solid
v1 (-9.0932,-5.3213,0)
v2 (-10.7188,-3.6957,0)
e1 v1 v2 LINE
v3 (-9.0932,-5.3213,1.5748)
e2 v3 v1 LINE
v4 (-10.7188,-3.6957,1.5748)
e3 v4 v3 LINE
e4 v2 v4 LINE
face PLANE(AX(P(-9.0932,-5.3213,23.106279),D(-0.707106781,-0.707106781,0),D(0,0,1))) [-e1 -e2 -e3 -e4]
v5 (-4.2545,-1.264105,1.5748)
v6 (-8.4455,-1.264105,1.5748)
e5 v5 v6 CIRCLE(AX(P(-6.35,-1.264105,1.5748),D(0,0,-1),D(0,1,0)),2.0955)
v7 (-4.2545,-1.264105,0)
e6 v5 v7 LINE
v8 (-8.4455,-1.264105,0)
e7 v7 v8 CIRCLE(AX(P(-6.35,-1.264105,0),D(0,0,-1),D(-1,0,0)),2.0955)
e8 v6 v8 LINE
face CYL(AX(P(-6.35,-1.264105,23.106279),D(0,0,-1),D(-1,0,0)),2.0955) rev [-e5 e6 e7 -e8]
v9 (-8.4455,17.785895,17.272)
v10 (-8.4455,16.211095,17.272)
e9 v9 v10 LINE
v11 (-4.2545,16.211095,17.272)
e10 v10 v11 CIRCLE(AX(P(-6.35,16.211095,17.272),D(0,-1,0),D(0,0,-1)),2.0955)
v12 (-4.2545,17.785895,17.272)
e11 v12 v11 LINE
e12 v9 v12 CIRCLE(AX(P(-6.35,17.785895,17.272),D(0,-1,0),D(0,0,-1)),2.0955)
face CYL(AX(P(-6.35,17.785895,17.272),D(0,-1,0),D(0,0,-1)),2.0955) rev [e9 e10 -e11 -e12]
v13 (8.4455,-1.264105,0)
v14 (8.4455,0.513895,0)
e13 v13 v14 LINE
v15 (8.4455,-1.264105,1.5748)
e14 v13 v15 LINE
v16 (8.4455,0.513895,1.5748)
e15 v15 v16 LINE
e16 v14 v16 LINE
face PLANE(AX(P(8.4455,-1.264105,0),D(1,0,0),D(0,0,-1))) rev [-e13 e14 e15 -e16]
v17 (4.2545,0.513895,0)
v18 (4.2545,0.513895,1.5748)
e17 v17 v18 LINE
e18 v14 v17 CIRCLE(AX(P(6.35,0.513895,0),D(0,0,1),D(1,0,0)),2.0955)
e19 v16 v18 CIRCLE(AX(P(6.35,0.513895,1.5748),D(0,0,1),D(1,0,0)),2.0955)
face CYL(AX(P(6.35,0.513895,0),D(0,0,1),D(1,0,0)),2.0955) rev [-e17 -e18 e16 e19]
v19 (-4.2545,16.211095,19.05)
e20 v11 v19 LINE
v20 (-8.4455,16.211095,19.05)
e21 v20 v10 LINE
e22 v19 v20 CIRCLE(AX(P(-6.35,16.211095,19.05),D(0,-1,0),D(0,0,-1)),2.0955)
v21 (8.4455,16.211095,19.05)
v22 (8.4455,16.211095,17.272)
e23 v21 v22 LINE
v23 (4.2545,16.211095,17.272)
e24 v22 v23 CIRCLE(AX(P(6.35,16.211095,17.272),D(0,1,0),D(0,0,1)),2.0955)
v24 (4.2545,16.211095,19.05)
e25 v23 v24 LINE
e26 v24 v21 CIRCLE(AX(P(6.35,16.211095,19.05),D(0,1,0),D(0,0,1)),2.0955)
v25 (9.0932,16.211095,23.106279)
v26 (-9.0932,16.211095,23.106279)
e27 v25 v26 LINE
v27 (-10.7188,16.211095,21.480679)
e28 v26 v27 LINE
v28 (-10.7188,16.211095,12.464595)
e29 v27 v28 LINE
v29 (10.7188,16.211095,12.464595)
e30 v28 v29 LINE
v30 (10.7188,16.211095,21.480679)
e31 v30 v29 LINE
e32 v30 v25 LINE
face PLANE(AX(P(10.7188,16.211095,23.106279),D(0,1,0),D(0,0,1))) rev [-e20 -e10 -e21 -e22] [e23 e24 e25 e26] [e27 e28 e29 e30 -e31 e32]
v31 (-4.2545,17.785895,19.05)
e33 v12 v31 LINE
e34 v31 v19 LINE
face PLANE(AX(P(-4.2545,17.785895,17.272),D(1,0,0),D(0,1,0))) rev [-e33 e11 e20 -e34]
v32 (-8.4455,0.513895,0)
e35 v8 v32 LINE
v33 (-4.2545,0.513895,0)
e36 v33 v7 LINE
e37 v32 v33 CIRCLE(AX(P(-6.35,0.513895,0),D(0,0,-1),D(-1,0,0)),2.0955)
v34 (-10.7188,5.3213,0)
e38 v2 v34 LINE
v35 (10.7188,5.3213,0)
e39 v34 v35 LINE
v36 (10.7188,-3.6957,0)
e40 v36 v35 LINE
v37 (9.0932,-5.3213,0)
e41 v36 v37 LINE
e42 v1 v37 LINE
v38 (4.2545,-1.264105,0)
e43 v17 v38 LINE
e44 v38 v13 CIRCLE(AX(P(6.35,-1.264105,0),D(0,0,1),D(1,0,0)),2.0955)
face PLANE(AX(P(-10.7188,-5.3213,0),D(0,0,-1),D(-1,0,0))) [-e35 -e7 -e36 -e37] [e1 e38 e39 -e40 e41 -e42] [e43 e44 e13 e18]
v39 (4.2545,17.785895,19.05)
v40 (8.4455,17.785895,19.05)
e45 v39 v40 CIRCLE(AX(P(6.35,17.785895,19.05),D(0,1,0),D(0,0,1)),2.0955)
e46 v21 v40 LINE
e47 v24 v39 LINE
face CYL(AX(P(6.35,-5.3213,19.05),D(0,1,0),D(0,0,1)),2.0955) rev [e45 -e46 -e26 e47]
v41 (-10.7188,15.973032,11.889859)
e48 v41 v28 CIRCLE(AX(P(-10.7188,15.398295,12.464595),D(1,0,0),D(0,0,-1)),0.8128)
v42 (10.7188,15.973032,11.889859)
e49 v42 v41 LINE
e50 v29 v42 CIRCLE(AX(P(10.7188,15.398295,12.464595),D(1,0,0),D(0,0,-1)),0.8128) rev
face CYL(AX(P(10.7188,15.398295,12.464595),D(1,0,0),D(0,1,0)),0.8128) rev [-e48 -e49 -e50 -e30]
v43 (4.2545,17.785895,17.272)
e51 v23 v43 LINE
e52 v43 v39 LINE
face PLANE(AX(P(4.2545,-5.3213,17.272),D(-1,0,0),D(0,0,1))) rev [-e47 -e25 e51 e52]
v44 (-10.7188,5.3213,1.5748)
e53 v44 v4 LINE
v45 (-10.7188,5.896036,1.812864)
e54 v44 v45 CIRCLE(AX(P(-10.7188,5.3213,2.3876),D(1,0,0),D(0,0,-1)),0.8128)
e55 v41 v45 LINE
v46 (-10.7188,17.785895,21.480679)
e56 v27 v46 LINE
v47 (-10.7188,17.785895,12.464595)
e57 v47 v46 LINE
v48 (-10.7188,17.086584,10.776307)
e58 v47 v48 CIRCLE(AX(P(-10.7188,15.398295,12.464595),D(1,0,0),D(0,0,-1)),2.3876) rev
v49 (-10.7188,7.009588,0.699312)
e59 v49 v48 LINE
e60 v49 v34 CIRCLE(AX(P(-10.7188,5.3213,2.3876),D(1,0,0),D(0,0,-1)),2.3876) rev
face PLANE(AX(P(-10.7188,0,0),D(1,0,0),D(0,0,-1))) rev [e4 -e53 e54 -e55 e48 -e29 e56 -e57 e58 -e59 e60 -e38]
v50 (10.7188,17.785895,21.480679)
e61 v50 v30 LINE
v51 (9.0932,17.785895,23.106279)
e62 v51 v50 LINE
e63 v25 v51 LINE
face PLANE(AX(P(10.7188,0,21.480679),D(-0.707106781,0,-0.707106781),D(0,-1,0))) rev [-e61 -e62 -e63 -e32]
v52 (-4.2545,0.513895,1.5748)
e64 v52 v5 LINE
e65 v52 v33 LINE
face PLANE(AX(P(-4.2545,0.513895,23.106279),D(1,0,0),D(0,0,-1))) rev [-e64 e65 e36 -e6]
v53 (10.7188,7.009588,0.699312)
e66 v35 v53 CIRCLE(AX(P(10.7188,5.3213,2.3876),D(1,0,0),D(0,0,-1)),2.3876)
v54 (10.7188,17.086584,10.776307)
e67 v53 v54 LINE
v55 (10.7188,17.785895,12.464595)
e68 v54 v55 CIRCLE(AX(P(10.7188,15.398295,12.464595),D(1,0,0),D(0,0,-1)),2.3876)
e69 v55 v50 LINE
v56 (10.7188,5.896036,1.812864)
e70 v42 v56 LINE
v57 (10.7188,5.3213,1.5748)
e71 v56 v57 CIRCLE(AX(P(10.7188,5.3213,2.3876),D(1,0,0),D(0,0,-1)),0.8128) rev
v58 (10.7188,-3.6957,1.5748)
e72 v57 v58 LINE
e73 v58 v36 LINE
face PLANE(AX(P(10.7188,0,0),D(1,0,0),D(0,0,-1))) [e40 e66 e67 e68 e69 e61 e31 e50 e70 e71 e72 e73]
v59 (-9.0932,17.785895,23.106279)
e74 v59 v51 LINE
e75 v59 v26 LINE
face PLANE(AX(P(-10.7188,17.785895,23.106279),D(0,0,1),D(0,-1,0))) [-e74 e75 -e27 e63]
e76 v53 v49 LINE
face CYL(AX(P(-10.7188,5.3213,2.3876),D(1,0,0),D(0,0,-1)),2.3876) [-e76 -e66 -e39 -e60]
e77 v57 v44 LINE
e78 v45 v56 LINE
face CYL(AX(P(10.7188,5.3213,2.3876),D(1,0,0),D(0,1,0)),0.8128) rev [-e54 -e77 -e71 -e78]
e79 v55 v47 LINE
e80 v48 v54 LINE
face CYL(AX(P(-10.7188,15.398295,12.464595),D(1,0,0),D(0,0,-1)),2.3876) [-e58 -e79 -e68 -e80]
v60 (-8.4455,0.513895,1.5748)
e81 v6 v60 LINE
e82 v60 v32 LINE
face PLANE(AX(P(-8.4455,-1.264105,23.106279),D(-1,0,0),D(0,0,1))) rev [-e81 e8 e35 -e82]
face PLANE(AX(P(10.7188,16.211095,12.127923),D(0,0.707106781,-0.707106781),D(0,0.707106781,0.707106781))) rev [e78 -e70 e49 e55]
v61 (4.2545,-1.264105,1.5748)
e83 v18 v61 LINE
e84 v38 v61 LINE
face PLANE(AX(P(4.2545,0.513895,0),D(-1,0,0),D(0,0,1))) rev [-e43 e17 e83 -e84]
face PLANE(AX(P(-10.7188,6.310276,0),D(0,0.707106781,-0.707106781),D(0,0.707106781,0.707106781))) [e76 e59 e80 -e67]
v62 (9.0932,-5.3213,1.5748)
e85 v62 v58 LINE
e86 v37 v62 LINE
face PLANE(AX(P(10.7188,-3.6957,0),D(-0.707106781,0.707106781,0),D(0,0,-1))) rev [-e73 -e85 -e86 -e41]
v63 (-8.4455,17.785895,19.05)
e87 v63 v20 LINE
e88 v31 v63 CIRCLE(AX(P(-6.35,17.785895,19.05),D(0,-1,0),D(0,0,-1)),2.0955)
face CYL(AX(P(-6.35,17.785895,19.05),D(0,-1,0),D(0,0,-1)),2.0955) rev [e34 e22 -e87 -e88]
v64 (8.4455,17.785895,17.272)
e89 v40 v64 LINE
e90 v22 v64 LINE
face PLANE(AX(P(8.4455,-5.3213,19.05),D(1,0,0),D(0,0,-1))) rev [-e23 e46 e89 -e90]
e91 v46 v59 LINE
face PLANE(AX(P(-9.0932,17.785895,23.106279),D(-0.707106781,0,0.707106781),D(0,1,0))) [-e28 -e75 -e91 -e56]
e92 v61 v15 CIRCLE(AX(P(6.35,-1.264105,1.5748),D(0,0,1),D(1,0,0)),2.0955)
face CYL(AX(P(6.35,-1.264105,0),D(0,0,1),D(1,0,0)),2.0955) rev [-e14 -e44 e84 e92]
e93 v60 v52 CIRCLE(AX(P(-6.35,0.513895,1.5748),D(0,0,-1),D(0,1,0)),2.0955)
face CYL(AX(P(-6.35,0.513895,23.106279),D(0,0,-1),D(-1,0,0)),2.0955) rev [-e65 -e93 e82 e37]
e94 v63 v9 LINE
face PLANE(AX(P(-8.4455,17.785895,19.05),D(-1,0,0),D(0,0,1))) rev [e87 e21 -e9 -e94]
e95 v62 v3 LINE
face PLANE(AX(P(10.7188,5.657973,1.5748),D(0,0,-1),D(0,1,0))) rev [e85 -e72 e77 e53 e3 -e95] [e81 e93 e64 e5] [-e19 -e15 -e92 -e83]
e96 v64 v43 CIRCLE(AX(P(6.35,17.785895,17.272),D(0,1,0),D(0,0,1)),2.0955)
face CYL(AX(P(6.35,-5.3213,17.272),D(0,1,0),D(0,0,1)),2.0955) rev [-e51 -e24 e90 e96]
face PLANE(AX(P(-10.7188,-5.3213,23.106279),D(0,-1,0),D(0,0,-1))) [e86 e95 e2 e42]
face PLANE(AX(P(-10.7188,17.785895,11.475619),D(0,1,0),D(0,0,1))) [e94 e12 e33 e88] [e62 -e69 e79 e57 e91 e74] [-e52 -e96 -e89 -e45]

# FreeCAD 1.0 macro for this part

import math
import FreeCAD as App
import Part
import Sketcher
from FreeCAD import Vector
Q = App.Units.Quantity


def edges_at(feature, points):
    """Names of the edges that pass closest to the given points."""
    edges = feature.Shape.Edges
    near = lambda p: min(range(len(edges)), key=lambda i: edges[i].distToShape(Part.Vertex(*p))[0])
    return sorted({f"Edge{near(p) + 1}" for p in points})


def add_polygon(sketch, points):
    """Adds a closed chain of lines whose ends are joined by coincident constraints."""
    first, n = sketch.GeometryCount, len(points)
    for a, b in zip(points, points[1:] + points[:1]):
        sketch.addGeometry(Part.LineSegment(App.Vector(*a, 0), App.Vector(*b, 0)), False)
    for i in range(n):
        sketch.addConstraint(Sketcher.Constraint("Coincident", first + i, 2, first + (i + 1) % n, 1))

doc = App.newDocument("Part")
body = doc.addObject("PartDesign::Body", "Body")

# Sketch on YZ plane
sketch1 = body.newObject("Sketcher::SketchObject", "Sketch")
sketch1.AttachmentSupport = (doc.getObject("YZ_Plane"), [""])
sketch1.MapMode = "FlatFace"
sketch1.AttachmentOffset = App.Placement(Vector(0, 0, 0.422 * 25.4), App.Rotation())
add_polygon(sketch1, [(17.785895, 23.106279), (-5.3213, 23.106279), (-5.3213, 0), (6.310276, 0), (17.785895, 11.475619)])  # lines 0-4
sketch1.addConstraint([
    Sketcher.Constraint("Horizontal", 0),
    Sketcher.Constraint("Vertical", 1),
    Sketcher.Constraint("Horizontal", 2),
    Sketcher.Constraint("Vertical", 4),
    Sketcher.Constraint("PointOnObject", 1, 2, -1),
    Sketcher.Constraint("Angle", 3, Q("45 deg")),
    Sketcher.Constraint("DistanceY", 4, 1, 4, 2, Q("0.4579 in")),
    Sketcher.Constraint("DistanceX", 0, 2, -1, 1, Q("0.2095 in")),
    Sketcher.Constraint("DistanceY", 1, 2, 1, 1, Q("23.106279 mm")),
    Sketcher.Constraint("DistanceX", 0, 2, 0, 1, Q("23.107195 mm")),
])
pad1 = body.newObject("PartDesign::Pad", "Pad")
pad1.Profile = sketch1
pad1.Length = Q("0.844 in")
pad1.Reversed = True

# Sketch on YZ plane
sketch2 = body.newObject("Sketcher::SketchObject", "Sketch001")
sketch2.AttachmentSupport = (doc.getObject("YZ_Plane"), [""])
sketch2.MapMode = "FlatFace"
sketch2.AttachmentOffset = App.Placement(Vector(0, 0, -0.422 * 25.4), App.Rotation())
add_polygon(sketch2, [(-5.3213, 23.106279), (16.211095, 23.106279), (16.211095, 12.127923), (5.657973, 1.5748), (-5.3213, 1.5748)])  # lines 0-4
sketch2.addConstraint([
    Sketcher.Constraint("Horizontal", 0),
    Sketcher.Constraint("Vertical", 1),
    Sketcher.Constraint("Horizontal", 3),
    Sketcher.Constraint("Vertical", 4),
    Sketcher.Constraint("Angle", 2, Q("-135 deg")),
    Sketcher.Constraint("DistanceY", -1, 1, 2, 2, Q("0.062 in")),
    Sketcher.Constraint("DistanceX", 3, 2, -1, 1, Q("0.2095 in")),
    Sketcher.Constraint("DistanceY", 4, 1, 4, 2, Q("21.531479 mm")),
    Sketcher.Constraint("Distance", 2, Q("14.924369 mm")),
    Sketcher.Constraint("DistanceX", 0, 1, 0, 2, Q("21.532395 mm")),
])
pocket1 = body.newObject("PartDesign::Pocket", "Pocket")
pocket1.Profile = sketch2
pocket1.Type = "ThroughAll"
pocket1.Reversed = True

# Sketch on XZ plane
sketch3 = body.newObject("Sketcher::SketchObject", "Sketch002")
sketch3.AttachmentSupport = (doc.getObject("XZ_Plane"), [""])
sketch3.MapMode = "FlatFace"
sketch3.AttachmentOffset = App.Placement(Vector(0, 0, -16.211095), App.Rotation())
sketch3.addGeometry([
    Part.LineSegment(Vector(-4.2545, 17.272, 0), Vector(-4.2545, 19.05, 0)),
    Part.ArcOfCircle(Part.Circle(Vector(-6.35, 19.05, 0), Vector(0, 0, 1), 2.0955), math.radians(0), math.radians(180)),
    Part.LineSegment(Vector(-8.4455, 19.05, 0), Vector(-8.4455, 17.272, 0)),
    Part.ArcOfCircle(Part.Circle(Vector(-6.35, 17.272, 0), Vector(0, 0, 1), 2.0955), math.radians(180), math.radians(360)),
], False)
sketch3.addConstraint([
    Sketcher.Constraint("Tangent", 0, 2, 1, 1),
    Sketcher.Constraint("Tangent", 1, 2, 2, 1),
    Sketcher.Constraint("Tangent", 2, 2, 3, 1),
    Sketcher.Constraint("Tangent", 3, 2, 0, 1),
    Sketcher.Constraint("Vertical", 0),
    Sketcher.Constraint("Vertical", 2),
    Sketcher.Constraint("DistanceY", 0, 1, 0, 2, Q("0.07 in")),
    Sketcher.Constraint("Radius", 1, Q("0.0825 in")),
    Sketcher.Constraint("DistanceX", 1, 3, -1, 1, Q("0.25 in")),
    Sketcher.Constraint("DistanceY", -1, 1, 1, 3, Q("0.75 in")),
])
pocket2 = body.newObject("PartDesign::Pocket", "Pocket001")
pocket2.Profile = sketch3
pocket2.Type = "ThroughAll"

# Sketch on XZ plane
sketch4 = body.newObject("Sketcher::SketchObject", "Sketch003")
sketch4.AttachmentSupport = (doc.getObject("XZ_Plane"), [""])
sketch4.MapMode = "FlatFace"
sketch4.AttachmentOffset = App.Placement(Vector(0, 0, -17.785895), App.Rotation())
sketch4.addGeometry([
    Part.LineSegment(Vector(8.4455, 19.05, 0), Vector(8.4455, 17.272, 0)),
    Part.ArcOfCircle(Part.Circle(Vector(6.35, 17.272, 0), Vector(0, 0, 1), 2.0955), math.radians(180), math.radians(360)),
    Part.LineSegment(Vector(4.2545, 17.272, 0), Vector(4.2545, 19.05, 0)),
    Part.ArcOfCircle(Part.Circle(Vector(6.35, 19.05, 0), Vector(0, 0, 1), 2.0955), math.radians(0), math.radians(180)),
], False)
sketch4.addConstraint([
    Sketcher.Constraint("Tangent", 0, 2, 1, 2),
    Sketcher.Constraint("Tangent", 1, 1, 2, 1),
    Sketcher.Constraint("Tangent", 2, 2, 3, 2),
    Sketcher.Constraint("Tangent", 3, 1, 0, 1),
    Sketcher.Constraint("Vertical", 0),
    Sketcher.Constraint("Vertical", 2),
    Sketcher.Constraint("DistanceY", 0, 2, 0, 1, Q("0.07 in")),
    Sketcher.Constraint("Radius", 1, Q("0.0825 in")),
    Sketcher.Constraint("DistanceX", -1, 1, 1, 3, Q("0.25 in")),
    Sketcher.Constraint("DistanceY", -1, 1, 1, 3, Q("0.68 in")),
])
pocket3 = body.newObject("PartDesign::Pocket", "Pocket002")
pocket3.Profile = sketch4
pocket3.Type = "ThroughAll"
pocket3.Reversed = True

# Sketch on XY plane
sketch5 = body.newObject("Sketcher::SketchObject", "Sketch004")
sketch5.AttachmentSupport = (doc.getObject("XY_Plane"), [""])
sketch5.MapMode = "FlatFace"
sketch5.AttachmentOffset = App.Placement(Vector(0, 0, 0.062 * 25.4), App.Rotation())
sketch5.addGeometry([
    Part.LineSegment(Vector(4.2545, 0.513895, 0), Vector(4.2545, -1.264105, 0)),
    Part.ArcOfCircle(Part.Circle(Vector(6.35, -1.264105, 0), Vector(0, 0, 1), 2.0955), math.radians(180), math.radians(360)),
    Part.LineSegment(Vector(8.4455, -1.264105, 0), Vector(8.4455, 0.513895, 0)),
    Part.ArcOfCircle(Part.Circle(Vector(6.35, 0.513895, 0), Vector(0, 0, 1), 2.0955), math.radians(0), math.radians(180)),
], False)
sketch5.addConstraint([
    Sketcher.Constraint("Tangent", 0, 2, 1, 1),
    Sketcher.Constraint("Tangent", 1, 2, 2, 1),
    Sketcher.Constraint("Tangent", 2, 2, 3, 1),
    Sketcher.Constraint("Tangent", 3, 2, 0, 1),
    Sketcher.Constraint("Vertical", 0),
    Sketcher.Constraint("Vertical", 2),
    Sketcher.Constraint("DistanceY", 0, 2, 0, 1, Q("0.07 in")),
    Sketcher.Constraint("Radius", 1, Q("0.0825 in")),
    Sketcher.Constraint("DistanceX", -1, 1, 1, 3, Q("0.25 in")),
    Sketcher.Constraint("DistanceY", 1, 3, -1, 1, Q("1.264105 mm")),
])
pocket4 = body.newObject("PartDesign::Pocket", "Pocket003")
pocket4.Profile = sketch5
pocket4.Type = "ThroughAll"

# Sketch on XY plane
sketch6 = body.newObject("Sketcher::SketchObject", "Sketch005")
sketch6.AttachmentSupport = (doc.getObject("XY_Plane"), [""])
sketch6.MapMode = "FlatFace"
sketch6.addGeometry([
    Part.LineSegment(Vector(-8.4455, -1.264105, 0), Vector(-8.4455, 0.513895, 0)),
    Part.ArcOfCircle(Part.Circle(Vector(-6.35, 0.513895, 0), Vector(0, 0, 1), 2.0955), math.radians(0), math.radians(180)),
    Part.LineSegment(Vector(-4.2545, 0.513895, 0), Vector(-4.2545, -1.264105, 0)),
    Part.ArcOfCircle(Part.Circle(Vector(-6.35, -1.264105, 0), Vector(0, 0, 1), 2.0955), math.radians(180), math.radians(360)),
], False)
sketch6.addConstraint([
    Sketcher.Constraint("Tangent", 0, 2, 1, 2),
    Sketcher.Constraint("Tangent", 1, 1, 2, 1),
    Sketcher.Constraint("Tangent", 2, 2, 3, 2),
    Sketcher.Constraint("Tangent", 3, 1, 0, 1),
    Sketcher.Constraint("Vertical", 0),
    Sketcher.Constraint("Vertical", 2),
    Sketcher.Constraint("DistanceY", 0, 1, 0, 2, Q("0.07 in")),
    Sketcher.Constraint("Radius", 1, Q("0.0825 in")),
    Sketcher.Constraint("DistanceX", 1, 3, -1, 1, Q("0.25 in")),
    Sketcher.Constraint("DistanceY", -1, 1, 1, 3, Q("0.513895 mm")),
])
pocket5 = body.newObject("PartDesign::Pocket", "Pocket004")
pocket5.Profile = sketch6
pocket5.Type = "ThroughAll"
pocket5.Reversed = True
doc.recompute()

chamfer = body.newObject("PartDesign::Chamfer", "Chamfer")
chamfer.Base = (pocket5, edges_at(pocket5, [
    (10.719, -5.321, 0.787),
    (-10.719, -5.321, 0.787),
    (10.719, 16.998, 23.106),
    (-10.719, 16.998, 23.106),
]))
chamfer.Size = Q("0.064 in")
doc.recompute()

fillet = body.newObject("PartDesign::Fillet", "Fillet")
fillet.Base = (chamfer, edges_at(chamfer, [(0, 5.658, 1.575), (0, 16.211, 12.128)]))
fillet.Radius = Q("0.032 in")
doc.recompute()

fillet2 = body.newObject("PartDesign::Fillet", "Fillet001")
fillet2.Base = (fillet, edges_at(fillet, [(0, 17.786, 11.476), (0, 6.31, 0)]))
fillet2.Radius = Q("0.094 in")

doc.recompute()
